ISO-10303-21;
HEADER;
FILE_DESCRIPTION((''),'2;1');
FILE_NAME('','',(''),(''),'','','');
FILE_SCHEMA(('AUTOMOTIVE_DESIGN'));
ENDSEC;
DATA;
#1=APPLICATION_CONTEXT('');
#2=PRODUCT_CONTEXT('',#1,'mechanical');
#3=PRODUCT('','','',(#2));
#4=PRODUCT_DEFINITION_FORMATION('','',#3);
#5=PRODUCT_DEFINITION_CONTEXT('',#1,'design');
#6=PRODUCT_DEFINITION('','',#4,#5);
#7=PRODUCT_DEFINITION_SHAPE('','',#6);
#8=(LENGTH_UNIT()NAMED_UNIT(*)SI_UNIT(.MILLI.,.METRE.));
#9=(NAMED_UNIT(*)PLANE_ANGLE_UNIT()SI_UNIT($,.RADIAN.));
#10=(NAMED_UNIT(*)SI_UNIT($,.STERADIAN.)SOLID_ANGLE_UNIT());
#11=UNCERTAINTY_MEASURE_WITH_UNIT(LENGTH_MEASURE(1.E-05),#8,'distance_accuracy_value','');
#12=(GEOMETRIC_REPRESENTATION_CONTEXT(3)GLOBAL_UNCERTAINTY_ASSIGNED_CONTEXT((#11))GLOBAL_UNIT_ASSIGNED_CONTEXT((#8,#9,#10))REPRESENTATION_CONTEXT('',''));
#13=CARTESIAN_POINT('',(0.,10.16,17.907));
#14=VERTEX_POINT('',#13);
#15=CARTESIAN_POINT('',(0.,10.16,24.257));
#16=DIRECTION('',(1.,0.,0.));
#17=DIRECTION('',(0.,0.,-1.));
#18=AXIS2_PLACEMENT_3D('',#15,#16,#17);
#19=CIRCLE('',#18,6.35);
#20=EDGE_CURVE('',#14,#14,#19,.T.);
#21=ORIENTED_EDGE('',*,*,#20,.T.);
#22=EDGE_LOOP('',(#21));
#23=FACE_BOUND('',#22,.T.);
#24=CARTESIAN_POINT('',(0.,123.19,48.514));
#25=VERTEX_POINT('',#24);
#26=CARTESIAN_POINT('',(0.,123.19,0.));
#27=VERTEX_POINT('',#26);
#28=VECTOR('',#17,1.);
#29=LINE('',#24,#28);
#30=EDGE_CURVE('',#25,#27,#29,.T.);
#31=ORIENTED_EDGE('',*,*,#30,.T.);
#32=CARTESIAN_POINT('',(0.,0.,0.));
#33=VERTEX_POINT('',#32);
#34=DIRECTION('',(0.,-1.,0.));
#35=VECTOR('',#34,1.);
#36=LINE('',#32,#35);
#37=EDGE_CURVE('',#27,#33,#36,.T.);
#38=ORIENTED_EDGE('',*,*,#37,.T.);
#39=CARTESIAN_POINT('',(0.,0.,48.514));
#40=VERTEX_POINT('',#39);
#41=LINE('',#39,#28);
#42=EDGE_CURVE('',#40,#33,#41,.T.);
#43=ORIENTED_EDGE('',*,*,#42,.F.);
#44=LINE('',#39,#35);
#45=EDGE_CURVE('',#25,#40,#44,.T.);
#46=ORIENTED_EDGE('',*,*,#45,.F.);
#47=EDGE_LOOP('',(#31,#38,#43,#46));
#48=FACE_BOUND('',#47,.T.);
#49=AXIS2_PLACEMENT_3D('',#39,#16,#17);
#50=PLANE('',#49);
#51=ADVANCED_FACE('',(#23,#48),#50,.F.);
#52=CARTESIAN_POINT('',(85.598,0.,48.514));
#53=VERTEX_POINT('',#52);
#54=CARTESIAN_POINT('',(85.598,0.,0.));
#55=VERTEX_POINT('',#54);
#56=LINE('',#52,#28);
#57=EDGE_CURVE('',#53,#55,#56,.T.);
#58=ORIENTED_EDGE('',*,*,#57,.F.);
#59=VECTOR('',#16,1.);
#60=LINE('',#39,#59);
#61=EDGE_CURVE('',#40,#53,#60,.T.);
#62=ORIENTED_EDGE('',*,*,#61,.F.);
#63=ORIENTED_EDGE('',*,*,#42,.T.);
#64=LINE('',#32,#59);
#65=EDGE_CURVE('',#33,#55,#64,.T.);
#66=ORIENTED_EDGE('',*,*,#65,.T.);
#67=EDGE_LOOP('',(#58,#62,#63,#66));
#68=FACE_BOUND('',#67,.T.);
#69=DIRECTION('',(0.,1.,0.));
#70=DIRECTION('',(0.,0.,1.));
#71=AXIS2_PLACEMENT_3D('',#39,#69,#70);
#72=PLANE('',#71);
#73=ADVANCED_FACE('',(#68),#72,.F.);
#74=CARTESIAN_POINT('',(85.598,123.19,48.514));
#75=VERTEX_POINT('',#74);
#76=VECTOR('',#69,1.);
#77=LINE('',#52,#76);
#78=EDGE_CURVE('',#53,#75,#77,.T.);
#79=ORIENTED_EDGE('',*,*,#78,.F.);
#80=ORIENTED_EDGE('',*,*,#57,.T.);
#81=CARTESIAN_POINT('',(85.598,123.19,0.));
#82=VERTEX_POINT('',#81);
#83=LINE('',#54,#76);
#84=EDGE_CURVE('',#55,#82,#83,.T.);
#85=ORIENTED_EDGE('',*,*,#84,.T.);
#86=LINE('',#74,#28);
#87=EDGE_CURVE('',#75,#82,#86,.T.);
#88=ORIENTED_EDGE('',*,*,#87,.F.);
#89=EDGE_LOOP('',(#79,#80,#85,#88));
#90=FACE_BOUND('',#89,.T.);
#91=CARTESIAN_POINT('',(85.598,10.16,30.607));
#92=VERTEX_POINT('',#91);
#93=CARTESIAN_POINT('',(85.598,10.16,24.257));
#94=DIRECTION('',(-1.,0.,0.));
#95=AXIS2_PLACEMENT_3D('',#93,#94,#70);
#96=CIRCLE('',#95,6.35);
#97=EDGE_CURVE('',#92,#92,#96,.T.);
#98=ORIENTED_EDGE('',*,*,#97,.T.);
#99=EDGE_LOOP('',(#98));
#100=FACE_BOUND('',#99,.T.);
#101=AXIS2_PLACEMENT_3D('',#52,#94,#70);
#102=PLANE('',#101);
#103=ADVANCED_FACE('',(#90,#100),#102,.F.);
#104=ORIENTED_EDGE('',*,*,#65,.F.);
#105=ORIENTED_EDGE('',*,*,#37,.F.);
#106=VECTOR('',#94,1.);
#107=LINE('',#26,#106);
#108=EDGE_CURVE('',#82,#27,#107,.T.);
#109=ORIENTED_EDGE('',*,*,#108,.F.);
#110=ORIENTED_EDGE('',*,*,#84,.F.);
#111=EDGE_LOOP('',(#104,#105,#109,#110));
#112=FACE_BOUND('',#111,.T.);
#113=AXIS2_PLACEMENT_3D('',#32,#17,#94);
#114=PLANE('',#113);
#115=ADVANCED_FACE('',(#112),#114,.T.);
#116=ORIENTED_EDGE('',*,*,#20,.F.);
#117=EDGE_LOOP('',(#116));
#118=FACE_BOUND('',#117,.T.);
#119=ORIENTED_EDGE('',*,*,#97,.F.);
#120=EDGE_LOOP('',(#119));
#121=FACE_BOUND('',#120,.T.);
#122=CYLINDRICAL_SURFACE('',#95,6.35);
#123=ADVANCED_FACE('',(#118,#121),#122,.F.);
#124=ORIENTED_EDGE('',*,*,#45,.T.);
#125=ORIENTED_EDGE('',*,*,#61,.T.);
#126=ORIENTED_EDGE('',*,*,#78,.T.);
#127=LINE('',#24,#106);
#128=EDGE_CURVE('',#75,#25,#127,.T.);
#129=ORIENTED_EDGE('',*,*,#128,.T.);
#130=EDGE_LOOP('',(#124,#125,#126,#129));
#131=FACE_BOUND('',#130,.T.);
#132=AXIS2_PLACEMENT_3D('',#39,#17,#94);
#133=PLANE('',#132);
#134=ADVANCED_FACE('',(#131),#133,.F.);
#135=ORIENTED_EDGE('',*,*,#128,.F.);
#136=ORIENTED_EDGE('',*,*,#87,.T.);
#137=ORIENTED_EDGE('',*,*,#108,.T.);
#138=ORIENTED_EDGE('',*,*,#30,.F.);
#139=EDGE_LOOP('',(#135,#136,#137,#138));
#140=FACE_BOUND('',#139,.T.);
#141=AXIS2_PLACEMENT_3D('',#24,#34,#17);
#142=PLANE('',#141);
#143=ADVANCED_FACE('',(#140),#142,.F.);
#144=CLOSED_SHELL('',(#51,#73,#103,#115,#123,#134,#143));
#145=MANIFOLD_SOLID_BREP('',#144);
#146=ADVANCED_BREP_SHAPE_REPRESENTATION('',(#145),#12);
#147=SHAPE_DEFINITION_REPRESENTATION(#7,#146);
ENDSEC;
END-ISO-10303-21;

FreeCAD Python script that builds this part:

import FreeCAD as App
import Part
import Sketcher
Q = App.Units.Quantity

doc = App.newDocument("Part")
params = doc.addObject("Spreadsheet::Sheet", "Params")
for row, (alias, value) in enumerate([
    ("sketch1_width", "3.37 in"),
    ("sketch1_height", "4.85 in"),
    ("pad1_length", "1.91 in"),
    ("sketch2_diameter", "0.5 in"),
], start=1):
    params.set(f"A{row}", alias)
    params.set(f"B{row}", "=" + value)
    params.setAlias(f"B{row}", alias)

body = doc.addObject("PartDesign::Body", "Body")

sketch1 = doc.addObject("Sketcher::SketchObject", "Sketch")
body.addObject(sketch1)
sketch1.AttachmentSupport = (doc.XY_Plane, [""])
sketch1.MapMode = "FlatFace"
sketch1.addGeometry(Part.LineSegment(App.Vector(0, 123, 0), App.Vector(0, 0, 0)), False)
sketch1.addGeometry(Part.LineSegment(App.Vector(0, 0, 0), App.Vector(86, 0, 0)), False)
sketch1.addGeometry(Part.LineSegment(App.Vector(86, 0, 0), App.Vector(86, 123, 0)), False)
sketch1.addGeometry(Part.LineSegment(App.Vector(86, 123, 0), App.Vector(0, 123, 0)), False)
sketch1.addConstraint(Sketcher.Constraint("Coincident", 0, 2, 1, 1))
sketch1.addConstraint(Sketcher.Constraint("Coincident", 1, 2, 2, 1))
sketch1.addConstraint(Sketcher.Constraint("Coincident", 2, 2, 3, 1))
sketch1.addConstraint(Sketcher.Constraint("Coincident", 3, 2, 0, 1))
sketch1.addConstraint(Sketcher.Constraint("Vertical", 0))
sketch1.addConstraint(Sketcher.Constraint("Horizontal", 1))
sketch1.addConstraint(Sketcher.Constraint("Vertical", 2))
sketch1.addConstraint(Sketcher.Constraint("Horizontal", 3))
sketch1.addConstraint(Sketcher.Constraint("Coincident", 0, 2, -1, 1))
sketch1.addConstraint(Sketcher.Constraint("DistanceX", 1, 1, 1, 2, Q("3.37 in")))
sketch1.addConstraint(Sketcher.Constraint("DistanceY", 0, 2, 0, 1, Q("4.85 in")))
sketch1.setExpression("Constraints[9]", "Params.sketch1_width")
sketch1.setExpression("Constraints[10]", "Params.sketch1_height")
pad1 = doc.addObject("PartDesign::Pad", "Pad")
body.addObject(pad1)
pad1.Profile = sketch1
pad1.setExpression("Length", "Params.pad1_length")

sketch2 = doc.addObject("Sketcher::SketchObject", "Sketch001")
body.addObject(sketch2)
sketch2.AttachmentSupport = (doc.YZ_Plane, [""])
sketch2.MapMode = "FlatFace"
sketch2.addGeometry(Part.Circle(App.Vector(10, 24, 0), App.Vector(0, 0, 1), 6), False)
sketch2.addConstraint(Sketcher.Constraint("Diameter", 0, Q("0.5 in")))
sketch2.addConstraint(Sketcher.Constraint("DistanceX", -1, 1, 0, 3, Q("0.4 in")))
sketch2.addConstraint(Sketcher.Constraint("DistanceY", -1, 1, 0, 3, Q("0.955 in")))
sketch2.setExpression("Constraints[0]", "Params.sketch2_diameter")
pocket1 = doc.addObject("PartDesign::Pocket", "Pocket")
body.addObject(pocket1)
pocket1.Profile = sketch2
pocket1.Type = "ThroughAll"
pocket1.Midplane = True

doc.recompute()
